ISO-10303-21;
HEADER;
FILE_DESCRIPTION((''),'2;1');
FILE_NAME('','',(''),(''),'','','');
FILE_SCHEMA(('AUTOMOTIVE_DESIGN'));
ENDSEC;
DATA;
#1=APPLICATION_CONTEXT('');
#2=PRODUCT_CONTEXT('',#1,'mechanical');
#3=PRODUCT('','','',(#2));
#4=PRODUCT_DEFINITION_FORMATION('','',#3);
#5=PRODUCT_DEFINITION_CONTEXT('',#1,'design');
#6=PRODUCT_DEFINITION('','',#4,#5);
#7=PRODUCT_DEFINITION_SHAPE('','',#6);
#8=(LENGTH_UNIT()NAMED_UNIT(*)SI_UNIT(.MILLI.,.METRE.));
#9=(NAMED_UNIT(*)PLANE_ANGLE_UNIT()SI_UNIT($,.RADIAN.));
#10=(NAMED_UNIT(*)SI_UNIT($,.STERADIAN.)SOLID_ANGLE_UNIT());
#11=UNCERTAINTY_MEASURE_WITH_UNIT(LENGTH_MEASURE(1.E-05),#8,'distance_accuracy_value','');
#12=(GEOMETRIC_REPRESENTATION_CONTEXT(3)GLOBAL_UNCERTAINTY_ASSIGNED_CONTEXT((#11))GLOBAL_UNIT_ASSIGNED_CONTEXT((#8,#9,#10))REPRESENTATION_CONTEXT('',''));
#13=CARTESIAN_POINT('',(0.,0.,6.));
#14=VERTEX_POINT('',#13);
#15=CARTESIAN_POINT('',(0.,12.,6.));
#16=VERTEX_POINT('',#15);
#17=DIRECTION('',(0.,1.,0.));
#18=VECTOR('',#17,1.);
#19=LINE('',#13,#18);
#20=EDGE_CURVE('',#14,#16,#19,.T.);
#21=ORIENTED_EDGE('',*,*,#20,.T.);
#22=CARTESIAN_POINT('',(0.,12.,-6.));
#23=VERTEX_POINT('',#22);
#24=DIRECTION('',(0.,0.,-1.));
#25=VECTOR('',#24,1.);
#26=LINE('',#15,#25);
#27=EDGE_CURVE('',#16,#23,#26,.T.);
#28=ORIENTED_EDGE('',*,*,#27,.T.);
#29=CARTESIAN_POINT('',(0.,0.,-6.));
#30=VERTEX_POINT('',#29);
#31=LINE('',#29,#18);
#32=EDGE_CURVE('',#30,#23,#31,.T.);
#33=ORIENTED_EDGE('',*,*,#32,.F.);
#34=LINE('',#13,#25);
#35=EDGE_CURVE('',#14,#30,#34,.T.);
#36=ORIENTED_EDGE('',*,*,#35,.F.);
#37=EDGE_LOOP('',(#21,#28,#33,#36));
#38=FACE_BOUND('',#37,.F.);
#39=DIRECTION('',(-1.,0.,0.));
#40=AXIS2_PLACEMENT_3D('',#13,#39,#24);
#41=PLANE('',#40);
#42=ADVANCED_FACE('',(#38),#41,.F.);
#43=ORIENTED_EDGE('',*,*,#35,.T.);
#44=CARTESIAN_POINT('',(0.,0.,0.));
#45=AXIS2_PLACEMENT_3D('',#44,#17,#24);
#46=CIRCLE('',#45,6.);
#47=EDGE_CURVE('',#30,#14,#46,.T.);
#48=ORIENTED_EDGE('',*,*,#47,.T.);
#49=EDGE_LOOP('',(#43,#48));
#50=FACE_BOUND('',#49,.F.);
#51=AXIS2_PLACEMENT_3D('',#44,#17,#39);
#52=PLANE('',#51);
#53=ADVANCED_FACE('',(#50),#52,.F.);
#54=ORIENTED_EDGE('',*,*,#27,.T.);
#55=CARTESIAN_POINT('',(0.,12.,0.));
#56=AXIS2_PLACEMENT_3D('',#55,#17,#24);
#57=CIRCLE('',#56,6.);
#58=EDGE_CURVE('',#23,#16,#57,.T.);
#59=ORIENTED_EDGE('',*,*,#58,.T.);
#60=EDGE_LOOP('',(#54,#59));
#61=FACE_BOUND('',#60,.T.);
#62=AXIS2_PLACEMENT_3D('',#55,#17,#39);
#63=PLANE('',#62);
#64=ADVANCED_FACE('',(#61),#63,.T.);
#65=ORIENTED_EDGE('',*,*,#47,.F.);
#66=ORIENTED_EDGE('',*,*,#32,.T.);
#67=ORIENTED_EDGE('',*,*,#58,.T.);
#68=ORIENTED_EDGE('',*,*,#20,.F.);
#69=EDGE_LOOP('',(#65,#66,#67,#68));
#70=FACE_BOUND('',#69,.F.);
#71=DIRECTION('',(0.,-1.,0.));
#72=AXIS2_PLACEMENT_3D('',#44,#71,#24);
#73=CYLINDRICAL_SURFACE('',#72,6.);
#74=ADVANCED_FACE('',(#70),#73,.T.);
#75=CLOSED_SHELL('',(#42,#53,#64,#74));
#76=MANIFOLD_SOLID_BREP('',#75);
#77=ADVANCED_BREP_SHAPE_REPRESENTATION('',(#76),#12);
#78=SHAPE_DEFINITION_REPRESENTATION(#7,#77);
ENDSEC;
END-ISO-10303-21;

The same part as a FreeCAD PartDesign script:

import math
import FreeCAD as App
import Part
import Sketcher

V = App.Vector

doc = App.newDocument("Part")
body = doc.addObject("PartDesign::Body", "Body")

sketch1 = doc.addObject("Sketcher::SketchObject", "Sketch")
body.addObject(sketch1)
sketch1.AttachmentSupport = (doc.XZ_Plane, [""])
sketch1.MapMode = "FlatFace"
sketch1.addGeometry(Part.LineSegment(V(0, 6, 0), V(0, -6, 0)), False)
sketch1.addGeometry(Part.ArcOfCircle(Part.Circle(V(0, 0, 0), V(0, 0, 1), 6), math.radians(90), math.radians(270)), False)
sketch1.addConstraint(Sketcher.Constraint("Coincident", 0, 1, 1, 1))
sketch1.addConstraint(Sketcher.Constraint("Coincident", 1, 2, 0, 2))
sketch1.addConstraint(Sketcher.Constraint("Vertical", 0))
sketch1.addConstraint(Sketcher.Constraint("Coincident", 1, 3, -1, 1))
sketch1.addConstraint(Sketcher.Constraint("PointOnObject", 0, 1, -2))
sketch1.addConstraint(Sketcher.Constraint("Radius", 1, 6.0))
pad1 = doc.addObject("PartDesign::Pad", "Pad")
body.addObject(pad1)
pad1.Profile = sketch1
pad1.Length = 12
pad1.Reversed = True

doc.recompute()
